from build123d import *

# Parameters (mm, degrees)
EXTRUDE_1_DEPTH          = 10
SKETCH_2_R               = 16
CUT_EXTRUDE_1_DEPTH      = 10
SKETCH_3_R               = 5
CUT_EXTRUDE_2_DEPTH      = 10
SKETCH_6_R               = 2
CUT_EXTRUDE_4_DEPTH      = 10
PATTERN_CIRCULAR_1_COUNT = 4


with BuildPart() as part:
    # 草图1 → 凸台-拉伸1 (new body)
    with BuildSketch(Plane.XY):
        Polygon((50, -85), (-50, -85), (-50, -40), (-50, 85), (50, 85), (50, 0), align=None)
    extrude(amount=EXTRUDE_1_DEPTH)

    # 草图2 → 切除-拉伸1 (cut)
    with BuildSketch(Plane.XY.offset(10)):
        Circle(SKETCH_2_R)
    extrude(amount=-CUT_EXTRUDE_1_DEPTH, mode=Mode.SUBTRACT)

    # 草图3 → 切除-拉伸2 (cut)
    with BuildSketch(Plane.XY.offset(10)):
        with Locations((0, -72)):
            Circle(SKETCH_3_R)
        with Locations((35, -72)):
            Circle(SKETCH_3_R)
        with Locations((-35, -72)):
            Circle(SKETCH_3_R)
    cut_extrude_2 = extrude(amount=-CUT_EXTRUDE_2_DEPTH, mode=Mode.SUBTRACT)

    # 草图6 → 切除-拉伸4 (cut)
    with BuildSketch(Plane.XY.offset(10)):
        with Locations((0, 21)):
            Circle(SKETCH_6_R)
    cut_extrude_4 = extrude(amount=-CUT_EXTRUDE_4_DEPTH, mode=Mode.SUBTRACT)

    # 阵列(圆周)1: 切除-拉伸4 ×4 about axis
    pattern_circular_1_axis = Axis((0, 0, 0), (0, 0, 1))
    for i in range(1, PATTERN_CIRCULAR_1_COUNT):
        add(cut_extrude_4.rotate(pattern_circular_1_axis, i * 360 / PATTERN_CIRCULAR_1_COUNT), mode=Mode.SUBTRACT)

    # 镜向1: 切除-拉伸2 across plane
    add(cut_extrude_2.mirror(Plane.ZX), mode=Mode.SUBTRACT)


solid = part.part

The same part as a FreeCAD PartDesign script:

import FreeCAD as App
import Part
import Sketcher
from FreeCAD import Vector
Q = App.Units.Quantity

doc = App.newDocument("Part")
params = doc.addObject("Spreadsheet::Sheet", "Params")
for row, (alias, value) in enumerate([
    ("sketch1_width", "100 mm"),
    ("sketch1_height", "170 mm"),
    ("pad1_length", "10 mm"),
    ("sketch2_diameter", "32 mm"),
    ("pocket1_length", "10 mm"),
    ("sketch3_diameter", "10 mm"),
    ("pocket2_length", "10 mm"),
    ("sketch4_diameter", "4 mm"),
    ("pocket3_length", "10 mm"),
], start=1):
    params.set(f"A{row}", alias)
    params.set(f"B{row}", "=" + value)
    params.setAlias(f"B{row}", alias)

body = doc.addObject("PartDesign::Body", "Body")

sketch1 = body.newObject("Sketcher::SketchObject", "Sketch")
sketch1.AttachmentSupport = (doc.getObject("XY_Plane"), [""])
sketch1.MapMode = "FlatFace"
sketch1.addGeometry([
    Part.LineSegment(Vector(-50, -85, 0), Vector(50, -85, 0)),
    Part.LineSegment(Vector(50, -85, 0), Vector(50, 85, 0)),
    Part.LineSegment(Vector(50, 85, 0), Vector(-50, 85, 0)),
    Part.LineSegment(Vector(-50, 85, 0), Vector(-50, -85, 0)),
], False)
sketch1.addConstraint([
    Sketcher.Constraint("Coincident", 0, 2, 1, 1),
    Sketcher.Constraint("Coincident", 1, 2, 2, 1),
    Sketcher.Constraint("Coincident", 2, 2, 3, 1),
    Sketcher.Constraint("Coincident", 3, 2, 0, 1),
    Sketcher.Constraint("Horizontal", 0),
    Sketcher.Constraint("Vertical", 1),
    Sketcher.Constraint("Horizontal", 2),
    Sketcher.Constraint("Vertical", 3),
    Sketcher.Constraint("Symmetric", 0, 2, 2, 2, -1, 1),
    Sketcher.Constraint("DistanceX", 0, 1, 0, 2, Q("100 mm")),
    Sketcher.Constraint("DistanceY", 1, 1, 1, 2, Q("170 mm")),
])
sketch1.setExpression("Constraints[9]", "Params.sketch1_width")
sketch1.setExpression("Constraints[10]", "Params.sketch1_height")
pad1 = body.newObject("PartDesign::Pad", "Pad")
pad1.Profile = sketch1
pad1.setExpression("Length", "Params.pad1_length")

sketch2 = body.newObject("Sketcher::SketchObject", "Sketch001")
sketch2.AttachmentSupport = (doc.getObject("XY_Plane"), [""])
sketch2.MapMode = "FlatFace"
sketch2.AttachmentOffset = App.Placement(Vector(0, 0, 10), App.Rotation())
sketch2.addGeometry(Part.Circle(Vector(0, 0, 0), Vector(0, 0, 1), 16), False)
sketch2.addConstraint([
    Sketcher.Constraint("Coincident", 0, 3, -1, 1),
    Sketcher.Constraint("Diameter", 0, Q("32 mm")),
])
sketch2.setExpression("Constraints[1]", "Params.sketch2_diameter")
pocket1 = body.newObject("PartDesign::Pocket", "Pocket")
pocket1.Profile = sketch2
pocket1.setExpression("Length", "Params.pocket1_length")

sketch3 = body.newObject("Sketcher::SketchObject", "Sketch002")
sketch3.AttachmentSupport = (doc.getObject("XY_Plane"), [""])
sketch3.MapMode = "FlatFace"
sketch3.AttachmentOffset = App.Placement(Vector(0, 0, 10), App.Rotation())
sketch3.addGeometry([
    Part.Circle(Vector(0, -72, 0), Vector(0, 0, 1), 5),
    Part.Circle(Vector(35, -72, 0), Vector(0, 0, 1), 5),
    Part.Circle(Vector(-35, -72, 0), Vector(0, 0, 1), 5),
], False)
sketch3.addConstraint([
    Sketcher.Constraint("Equal", 0, 1),
    Sketcher.Constraint("Equal", 1, 2),
    Sketcher.Constraint("Symmetric", 1, 3, 2, 3, -2),
    Sketcher.Constraint("PointOnObject", 0, 3, -2),
    Sketcher.Constraint("Horizontal", 0, 3, 1, 3),
    Sketcher.Constraint("Diameter", 0, Q("10 mm")),
    Sketcher.Constraint("DistanceY", 0, 3, -1, 1, Q("72 mm")),
    Sketcher.Constraint("DistanceX", -1, 1, 1, 3, Q("35 mm")),
])
sketch3.setExpression("Constraints[5]", "Params.sketch3_diameter")
pocket2 = body.newObject("PartDesign::Pocket", "Pocket001")
pocket2.Profile = sketch3
pocket2.setExpression("Length", "Params.pocket2_length")

sketch4 = body.newObject("Sketcher::SketchObject", "Sketch003")
sketch4.AttachmentSupport = (doc.getObject("XY_Plane"), [""])
sketch4.MapMode = "FlatFace"
sketch4.AttachmentOffset = App.Placement(Vector(0, 0, 10), App.Rotation())
sketch4.addGeometry(Part.Circle(Vector(0, 21, 0), Vector(0, 0, 1), 2), False)
sketch4.addConstraint([
    Sketcher.Constraint("PointOnObject", 0, 3, -2),
    Sketcher.Constraint("Diameter", 0, Q("4 mm")),
    Sketcher.Constraint("DistanceY", -1, 1, 0, 3, Q("21 mm")),
])
sketch4.setExpression("Constraints[1]", "Params.sketch4_diameter")
pocket3 = body.newObject("PartDesign::Pocket", "Pocket002")
pocket3.Profile = sketch4
pocket3.setExpression("Length", "Params.pocket3_length")
doc.recompute()

polarpattern = body.newObject("PartDesign::PolarPattern", "PolarPattern")
polarpattern.Originals = [pocket3]
polarpattern.Axis = (doc.getObject("Z_Axis"), [""])
polarpattern.Angle = 360
polarpattern.Occurrences = 4
body.Tip = polarpattern
doc.recompute()

mirrored = body.newObject("PartDesign::Mirrored", "Mirrored")
mirrored.Originals = [pocket2]
mirrored.MirrorPlane = (doc.getObject("XZ_Plane"), [""])
body.Tip = mirrored

doc.recompute()
